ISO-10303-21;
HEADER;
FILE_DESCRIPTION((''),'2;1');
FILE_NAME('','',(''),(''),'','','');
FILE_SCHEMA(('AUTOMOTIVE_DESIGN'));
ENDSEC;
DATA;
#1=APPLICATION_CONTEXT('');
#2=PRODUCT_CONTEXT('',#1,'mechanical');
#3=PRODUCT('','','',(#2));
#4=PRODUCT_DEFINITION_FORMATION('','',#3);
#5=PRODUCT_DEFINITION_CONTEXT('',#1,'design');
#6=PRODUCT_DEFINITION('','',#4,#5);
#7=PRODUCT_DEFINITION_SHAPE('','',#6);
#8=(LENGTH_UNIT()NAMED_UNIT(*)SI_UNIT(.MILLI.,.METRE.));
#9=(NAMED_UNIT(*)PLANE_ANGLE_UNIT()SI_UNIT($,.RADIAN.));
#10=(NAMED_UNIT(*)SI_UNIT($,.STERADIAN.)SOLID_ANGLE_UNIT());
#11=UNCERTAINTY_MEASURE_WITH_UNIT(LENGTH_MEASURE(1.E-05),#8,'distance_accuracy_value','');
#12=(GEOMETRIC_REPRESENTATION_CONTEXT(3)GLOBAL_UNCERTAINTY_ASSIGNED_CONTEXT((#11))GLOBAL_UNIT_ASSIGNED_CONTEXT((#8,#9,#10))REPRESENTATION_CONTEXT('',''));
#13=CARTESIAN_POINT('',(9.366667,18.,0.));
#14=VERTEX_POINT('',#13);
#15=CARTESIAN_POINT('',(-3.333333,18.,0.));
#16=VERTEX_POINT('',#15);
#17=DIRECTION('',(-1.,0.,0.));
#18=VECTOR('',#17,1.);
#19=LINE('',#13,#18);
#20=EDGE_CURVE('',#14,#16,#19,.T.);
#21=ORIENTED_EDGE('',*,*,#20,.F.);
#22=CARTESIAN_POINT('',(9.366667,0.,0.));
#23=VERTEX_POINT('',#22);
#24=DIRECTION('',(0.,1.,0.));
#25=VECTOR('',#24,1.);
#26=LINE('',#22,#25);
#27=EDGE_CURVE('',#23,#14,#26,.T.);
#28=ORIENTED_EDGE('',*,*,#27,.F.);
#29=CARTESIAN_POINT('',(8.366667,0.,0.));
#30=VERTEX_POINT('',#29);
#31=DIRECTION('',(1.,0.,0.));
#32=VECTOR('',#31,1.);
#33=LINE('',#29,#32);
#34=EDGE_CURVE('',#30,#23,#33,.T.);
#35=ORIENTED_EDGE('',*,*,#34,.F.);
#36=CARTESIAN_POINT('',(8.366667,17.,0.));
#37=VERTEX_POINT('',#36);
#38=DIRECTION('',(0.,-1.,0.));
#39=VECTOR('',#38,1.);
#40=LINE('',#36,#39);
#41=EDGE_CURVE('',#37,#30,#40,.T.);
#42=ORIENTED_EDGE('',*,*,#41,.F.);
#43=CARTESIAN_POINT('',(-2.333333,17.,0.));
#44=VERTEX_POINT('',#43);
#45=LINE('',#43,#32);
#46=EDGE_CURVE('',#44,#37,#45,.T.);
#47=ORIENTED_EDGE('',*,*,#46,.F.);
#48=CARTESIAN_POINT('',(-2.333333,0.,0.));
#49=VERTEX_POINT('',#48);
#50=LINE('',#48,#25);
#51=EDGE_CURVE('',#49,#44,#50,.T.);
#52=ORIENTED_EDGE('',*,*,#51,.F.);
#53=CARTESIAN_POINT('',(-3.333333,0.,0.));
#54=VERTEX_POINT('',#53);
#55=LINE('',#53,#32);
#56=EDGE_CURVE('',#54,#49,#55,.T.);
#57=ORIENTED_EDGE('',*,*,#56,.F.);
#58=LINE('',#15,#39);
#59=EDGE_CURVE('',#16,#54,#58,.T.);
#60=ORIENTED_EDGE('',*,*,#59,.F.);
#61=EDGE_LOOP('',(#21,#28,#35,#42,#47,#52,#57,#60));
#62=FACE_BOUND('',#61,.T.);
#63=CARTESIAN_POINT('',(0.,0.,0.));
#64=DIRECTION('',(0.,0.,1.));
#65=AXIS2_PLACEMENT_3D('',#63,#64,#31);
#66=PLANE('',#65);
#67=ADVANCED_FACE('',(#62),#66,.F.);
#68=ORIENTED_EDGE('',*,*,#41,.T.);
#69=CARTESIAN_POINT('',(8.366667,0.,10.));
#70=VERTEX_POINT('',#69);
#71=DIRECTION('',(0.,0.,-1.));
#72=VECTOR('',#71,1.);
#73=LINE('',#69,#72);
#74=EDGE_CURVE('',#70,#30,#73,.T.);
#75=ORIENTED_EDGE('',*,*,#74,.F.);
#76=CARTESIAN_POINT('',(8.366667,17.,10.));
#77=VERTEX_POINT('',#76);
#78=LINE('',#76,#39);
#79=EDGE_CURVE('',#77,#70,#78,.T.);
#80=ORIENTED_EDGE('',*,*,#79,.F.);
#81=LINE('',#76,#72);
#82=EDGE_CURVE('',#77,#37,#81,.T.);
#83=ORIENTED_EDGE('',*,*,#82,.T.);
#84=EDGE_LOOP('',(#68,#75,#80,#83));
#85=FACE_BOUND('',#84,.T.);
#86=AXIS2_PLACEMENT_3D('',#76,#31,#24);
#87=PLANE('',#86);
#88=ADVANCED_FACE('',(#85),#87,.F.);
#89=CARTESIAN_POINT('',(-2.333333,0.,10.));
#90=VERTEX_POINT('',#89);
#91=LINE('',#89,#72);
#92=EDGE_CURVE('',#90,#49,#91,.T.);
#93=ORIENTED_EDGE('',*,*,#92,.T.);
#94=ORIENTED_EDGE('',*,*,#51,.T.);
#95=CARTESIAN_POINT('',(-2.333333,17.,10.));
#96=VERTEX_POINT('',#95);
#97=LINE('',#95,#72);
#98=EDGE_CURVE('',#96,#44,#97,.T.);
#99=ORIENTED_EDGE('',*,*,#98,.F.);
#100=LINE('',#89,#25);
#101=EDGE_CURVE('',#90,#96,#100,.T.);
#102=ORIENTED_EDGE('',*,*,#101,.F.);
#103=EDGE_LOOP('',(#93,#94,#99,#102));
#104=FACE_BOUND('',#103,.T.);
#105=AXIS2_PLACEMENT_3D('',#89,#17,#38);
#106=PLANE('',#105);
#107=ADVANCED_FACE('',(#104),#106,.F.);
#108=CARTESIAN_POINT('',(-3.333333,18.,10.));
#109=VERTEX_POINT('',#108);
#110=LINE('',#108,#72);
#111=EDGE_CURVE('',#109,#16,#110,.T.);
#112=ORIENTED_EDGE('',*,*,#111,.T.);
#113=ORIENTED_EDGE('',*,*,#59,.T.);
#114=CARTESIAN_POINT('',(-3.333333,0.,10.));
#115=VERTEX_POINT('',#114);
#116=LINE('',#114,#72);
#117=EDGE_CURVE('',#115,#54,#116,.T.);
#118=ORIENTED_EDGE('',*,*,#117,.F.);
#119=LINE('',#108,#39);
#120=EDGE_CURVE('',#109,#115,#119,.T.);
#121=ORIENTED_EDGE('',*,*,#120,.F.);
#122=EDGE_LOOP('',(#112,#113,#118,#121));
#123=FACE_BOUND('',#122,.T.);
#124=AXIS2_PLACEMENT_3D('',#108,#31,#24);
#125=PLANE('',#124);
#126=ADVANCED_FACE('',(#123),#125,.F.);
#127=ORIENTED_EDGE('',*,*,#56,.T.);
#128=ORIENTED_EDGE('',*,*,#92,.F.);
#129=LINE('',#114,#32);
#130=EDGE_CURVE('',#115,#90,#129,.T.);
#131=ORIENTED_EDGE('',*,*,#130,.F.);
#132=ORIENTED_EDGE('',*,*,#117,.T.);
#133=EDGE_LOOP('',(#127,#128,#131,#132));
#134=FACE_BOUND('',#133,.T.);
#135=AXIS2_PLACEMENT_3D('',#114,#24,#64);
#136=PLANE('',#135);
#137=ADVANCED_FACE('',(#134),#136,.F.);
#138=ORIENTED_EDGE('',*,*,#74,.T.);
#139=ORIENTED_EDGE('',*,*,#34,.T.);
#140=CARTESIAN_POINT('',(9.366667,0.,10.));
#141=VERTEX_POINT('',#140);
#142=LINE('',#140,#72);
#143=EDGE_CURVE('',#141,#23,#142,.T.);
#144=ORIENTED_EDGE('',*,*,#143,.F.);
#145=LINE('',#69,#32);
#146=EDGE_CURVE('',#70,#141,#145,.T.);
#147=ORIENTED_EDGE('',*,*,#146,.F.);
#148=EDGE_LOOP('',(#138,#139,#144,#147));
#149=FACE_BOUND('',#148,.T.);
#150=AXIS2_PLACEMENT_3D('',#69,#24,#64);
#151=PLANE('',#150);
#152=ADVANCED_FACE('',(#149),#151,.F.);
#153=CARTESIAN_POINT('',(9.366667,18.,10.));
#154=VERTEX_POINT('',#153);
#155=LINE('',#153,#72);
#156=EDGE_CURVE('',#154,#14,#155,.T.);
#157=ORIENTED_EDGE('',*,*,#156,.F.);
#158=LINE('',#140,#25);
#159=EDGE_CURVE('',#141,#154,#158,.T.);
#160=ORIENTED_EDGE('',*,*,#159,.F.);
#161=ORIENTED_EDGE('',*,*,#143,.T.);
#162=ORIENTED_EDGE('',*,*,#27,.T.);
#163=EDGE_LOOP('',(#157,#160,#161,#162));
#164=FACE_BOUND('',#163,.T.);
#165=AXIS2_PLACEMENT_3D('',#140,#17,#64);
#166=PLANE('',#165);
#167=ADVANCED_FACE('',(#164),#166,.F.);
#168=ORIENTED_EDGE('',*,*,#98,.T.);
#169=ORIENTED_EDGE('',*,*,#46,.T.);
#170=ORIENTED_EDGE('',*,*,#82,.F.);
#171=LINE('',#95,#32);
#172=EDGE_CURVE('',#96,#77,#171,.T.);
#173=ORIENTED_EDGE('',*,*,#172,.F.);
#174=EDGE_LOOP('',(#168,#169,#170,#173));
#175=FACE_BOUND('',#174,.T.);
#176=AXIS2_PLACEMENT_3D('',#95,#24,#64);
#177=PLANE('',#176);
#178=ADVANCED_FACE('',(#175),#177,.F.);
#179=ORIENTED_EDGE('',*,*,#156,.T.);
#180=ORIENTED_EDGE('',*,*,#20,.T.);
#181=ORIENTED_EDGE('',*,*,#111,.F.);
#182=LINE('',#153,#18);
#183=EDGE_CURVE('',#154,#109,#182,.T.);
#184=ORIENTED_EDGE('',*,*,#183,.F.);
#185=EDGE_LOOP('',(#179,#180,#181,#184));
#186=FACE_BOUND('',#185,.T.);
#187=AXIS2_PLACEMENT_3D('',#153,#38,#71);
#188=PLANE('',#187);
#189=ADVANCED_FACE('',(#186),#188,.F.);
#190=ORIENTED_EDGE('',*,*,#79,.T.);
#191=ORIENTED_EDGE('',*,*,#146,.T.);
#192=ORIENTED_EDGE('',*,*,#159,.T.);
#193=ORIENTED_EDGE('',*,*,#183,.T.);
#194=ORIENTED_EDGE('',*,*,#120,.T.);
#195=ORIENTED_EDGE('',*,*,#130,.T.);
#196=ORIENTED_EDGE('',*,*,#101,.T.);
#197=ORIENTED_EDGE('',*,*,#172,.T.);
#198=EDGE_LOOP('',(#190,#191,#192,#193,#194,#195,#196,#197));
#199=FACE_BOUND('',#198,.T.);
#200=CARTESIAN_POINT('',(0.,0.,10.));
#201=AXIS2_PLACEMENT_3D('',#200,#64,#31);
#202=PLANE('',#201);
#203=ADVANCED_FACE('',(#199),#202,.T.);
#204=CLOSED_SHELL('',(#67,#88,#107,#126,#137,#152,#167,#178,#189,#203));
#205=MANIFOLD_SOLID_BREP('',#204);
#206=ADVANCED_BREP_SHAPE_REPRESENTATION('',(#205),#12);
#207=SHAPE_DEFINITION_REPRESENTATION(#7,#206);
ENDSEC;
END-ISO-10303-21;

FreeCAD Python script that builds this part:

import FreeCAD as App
import Part
import Sketcher


def add_polygon(sketch, points):
    """Adds a closed chain of lines whose ends are joined by coincident constraints."""
    first, n = sketch.GeometryCount, len(points)
    for a, b in zip(points, points[1:] + points[:1]):
        sketch.addGeometry(Part.LineSegment(App.Vector(*a, 0), App.Vector(*b, 0)), False)
    for i in range(n):
        sketch.addConstraint(Sketcher.Constraint("Coincident", first + i, 2, first + (i + 1) % n, 1))

doc = App.newDocument("Part")
body = doc.addObject("PartDesign::Body", "Body")

# Sketch on XY plane
sketch1 = body.newObject("Sketcher::SketchObject", "Sketch")
sketch1.AttachmentSupport = (doc.getObject("XY_Plane"), [""])
sketch1.MapMode = "FlatFace"
add_polygon(sketch1, [(-2.3, 0), (-2.3, 17), (8.4, 17), (8.4, 0), (9.4, 0), (9.4, 18), (-3.3, 18), (-3.3, 0)])  # lines 0-7
sketch1.addConstraint([
    Sketcher.Constraint("Vertical", 0),
    Sketcher.Constraint("Horizontal", 1),
    Sketcher.Constraint("Vertical", 2),
    Sketcher.Constraint("Horizontal", 3),
    Sketcher.Constraint("Vertical", 4),
    Sketcher.Constraint("Horizontal", 5),
    Sketcher.Constraint("Vertical", 6),
    Sketcher.Constraint("Horizontal", 7),
    Sketcher.Constraint("PointOnObject", 2, 2, -1),
    Sketcher.Constraint("PointOnObject", 6, 2, -1),
    Sketcher.Constraint("Equal", 3, 7),
    Sketcher.Constraint("DistanceX", 3, 1, 3, 2, 1.0),
    Sketcher.Constraint("DistanceY", 0, 1, 0, 2, 17.0),
    Sketcher.Constraint("DistanceY", 4, 1, 4, 2, 18.0),
    Sketcher.Constraint("DistanceX", 1, 1, 1, 2, 10.7),
    Sketcher.Constraint("DistanceX", 0, 2, -1, 1, 2.333333),
])
pad1 = body.newObject("PartDesign::Pad", "Pad")
pad1.Profile = sketch1
pad1.Length = 10

doc.recompute()
